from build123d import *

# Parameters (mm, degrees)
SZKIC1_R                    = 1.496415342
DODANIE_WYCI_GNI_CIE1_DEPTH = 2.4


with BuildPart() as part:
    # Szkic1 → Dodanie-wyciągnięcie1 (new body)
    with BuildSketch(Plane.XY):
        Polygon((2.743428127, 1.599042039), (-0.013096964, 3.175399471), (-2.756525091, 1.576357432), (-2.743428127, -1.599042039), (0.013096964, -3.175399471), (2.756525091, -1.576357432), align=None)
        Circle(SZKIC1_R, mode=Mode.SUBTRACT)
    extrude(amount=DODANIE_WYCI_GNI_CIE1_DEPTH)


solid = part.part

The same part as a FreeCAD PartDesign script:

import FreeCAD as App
import Part
import Sketcher
from FreeCAD import Vector
Q = App.Units.Quantity


def add_polygon(sketch, points):
    """Adds a closed chain of lines whose ends are joined by coincident constraints."""
    first, n = sketch.GeometryCount, len(points)
    for a, b in zip(points, points[1:] + points[:1]):
        sketch.addGeometry(Part.LineSegment(App.Vector(*a, 0), App.Vector(*b, 0)), False)
    for i in range(n):
        sketch.addConstraint(Sketcher.Constraint("Coincident", first + i, 2, first + (i + 1) % n, 1))

doc = App.newDocument("Part")
params = doc.addObject("Spreadsheet::Sheet", "Params")
for row, (alias, value) in enumerate([
    ("pad1_length", "2.4 mm"),
], start=1):
    params.set(f"A{row}", alias)
    params.set(f"B{row}", "=" + value)
    params.setAlias(f"B{row}", alias)

body = doc.addObject("PartDesign::Body", "Body")

sketch1 = body.newObject("Sketcher::SketchObject", "Sketch")
sketch1.AttachmentSupport = (doc.getObject("XY_Plane"), [""])
sketch1.MapMode = "FlatFace"
add_polygon(sketch1, [(2.743428, 1.599042), (-0.013097, 3.175399), (-2.756525, 1.576357), (-2.743428, -1.599042), (0.013097, -3.175399), (2.756525, -1.576357)])
sketch1.addGeometry(Part.Circle(Vector(0, 0, 0), Vector(0, 0, 1), 1.496415), False)
sketch1.addConstraint(Sketcher.Constraint("Coincident", 6, 3, -1, 1))
sketch1.addConstraint(Sketcher.Constraint("Symmetric", 0, 2, 3, 2, -1, 1))
sketch1.addConstraint(Sketcher.Constraint("Symmetric", 1, 2, 4, 2, -1, 1))
sketch1.addConstraint(Sketcher.Constraint("Symmetric", 2, 2, 5, 2, -1, 1))
sketch1.addConstraint(Sketcher.Constraint("Equal", 0, 1))
sketch1.addConstraint(Sketcher.Constraint("Equal", 1, 2))
sketch1.addConstraint(Sketcher.Constraint("Diameter", 6, Q("2.992831 mm")))
sketch1.addConstraint(Sketcher.Constraint("DistanceY", -1, 1, 0, 2, Q("3.175399 mm")))
sketch1.addConstraint(Sketcher.Constraint("DistanceY", 2, 2, 1, 2, Q("3.175399 mm")))
sketch1.addConstraint(Sketcher.Constraint("DistanceX", 2, 2, -1, 1, Q("2.743428 mm")))
sketch1.addConstraint(Sketcher.Constraint("DistanceX", 1, 2, 0, 2, Q("2.743428 mm")))
pad1 = body.newObject("PartDesign::Pad", "Pad")
pad1.Profile = sketch1
pad1.setExpression("Length", "Params.pad1_length")

doc.recompute()
